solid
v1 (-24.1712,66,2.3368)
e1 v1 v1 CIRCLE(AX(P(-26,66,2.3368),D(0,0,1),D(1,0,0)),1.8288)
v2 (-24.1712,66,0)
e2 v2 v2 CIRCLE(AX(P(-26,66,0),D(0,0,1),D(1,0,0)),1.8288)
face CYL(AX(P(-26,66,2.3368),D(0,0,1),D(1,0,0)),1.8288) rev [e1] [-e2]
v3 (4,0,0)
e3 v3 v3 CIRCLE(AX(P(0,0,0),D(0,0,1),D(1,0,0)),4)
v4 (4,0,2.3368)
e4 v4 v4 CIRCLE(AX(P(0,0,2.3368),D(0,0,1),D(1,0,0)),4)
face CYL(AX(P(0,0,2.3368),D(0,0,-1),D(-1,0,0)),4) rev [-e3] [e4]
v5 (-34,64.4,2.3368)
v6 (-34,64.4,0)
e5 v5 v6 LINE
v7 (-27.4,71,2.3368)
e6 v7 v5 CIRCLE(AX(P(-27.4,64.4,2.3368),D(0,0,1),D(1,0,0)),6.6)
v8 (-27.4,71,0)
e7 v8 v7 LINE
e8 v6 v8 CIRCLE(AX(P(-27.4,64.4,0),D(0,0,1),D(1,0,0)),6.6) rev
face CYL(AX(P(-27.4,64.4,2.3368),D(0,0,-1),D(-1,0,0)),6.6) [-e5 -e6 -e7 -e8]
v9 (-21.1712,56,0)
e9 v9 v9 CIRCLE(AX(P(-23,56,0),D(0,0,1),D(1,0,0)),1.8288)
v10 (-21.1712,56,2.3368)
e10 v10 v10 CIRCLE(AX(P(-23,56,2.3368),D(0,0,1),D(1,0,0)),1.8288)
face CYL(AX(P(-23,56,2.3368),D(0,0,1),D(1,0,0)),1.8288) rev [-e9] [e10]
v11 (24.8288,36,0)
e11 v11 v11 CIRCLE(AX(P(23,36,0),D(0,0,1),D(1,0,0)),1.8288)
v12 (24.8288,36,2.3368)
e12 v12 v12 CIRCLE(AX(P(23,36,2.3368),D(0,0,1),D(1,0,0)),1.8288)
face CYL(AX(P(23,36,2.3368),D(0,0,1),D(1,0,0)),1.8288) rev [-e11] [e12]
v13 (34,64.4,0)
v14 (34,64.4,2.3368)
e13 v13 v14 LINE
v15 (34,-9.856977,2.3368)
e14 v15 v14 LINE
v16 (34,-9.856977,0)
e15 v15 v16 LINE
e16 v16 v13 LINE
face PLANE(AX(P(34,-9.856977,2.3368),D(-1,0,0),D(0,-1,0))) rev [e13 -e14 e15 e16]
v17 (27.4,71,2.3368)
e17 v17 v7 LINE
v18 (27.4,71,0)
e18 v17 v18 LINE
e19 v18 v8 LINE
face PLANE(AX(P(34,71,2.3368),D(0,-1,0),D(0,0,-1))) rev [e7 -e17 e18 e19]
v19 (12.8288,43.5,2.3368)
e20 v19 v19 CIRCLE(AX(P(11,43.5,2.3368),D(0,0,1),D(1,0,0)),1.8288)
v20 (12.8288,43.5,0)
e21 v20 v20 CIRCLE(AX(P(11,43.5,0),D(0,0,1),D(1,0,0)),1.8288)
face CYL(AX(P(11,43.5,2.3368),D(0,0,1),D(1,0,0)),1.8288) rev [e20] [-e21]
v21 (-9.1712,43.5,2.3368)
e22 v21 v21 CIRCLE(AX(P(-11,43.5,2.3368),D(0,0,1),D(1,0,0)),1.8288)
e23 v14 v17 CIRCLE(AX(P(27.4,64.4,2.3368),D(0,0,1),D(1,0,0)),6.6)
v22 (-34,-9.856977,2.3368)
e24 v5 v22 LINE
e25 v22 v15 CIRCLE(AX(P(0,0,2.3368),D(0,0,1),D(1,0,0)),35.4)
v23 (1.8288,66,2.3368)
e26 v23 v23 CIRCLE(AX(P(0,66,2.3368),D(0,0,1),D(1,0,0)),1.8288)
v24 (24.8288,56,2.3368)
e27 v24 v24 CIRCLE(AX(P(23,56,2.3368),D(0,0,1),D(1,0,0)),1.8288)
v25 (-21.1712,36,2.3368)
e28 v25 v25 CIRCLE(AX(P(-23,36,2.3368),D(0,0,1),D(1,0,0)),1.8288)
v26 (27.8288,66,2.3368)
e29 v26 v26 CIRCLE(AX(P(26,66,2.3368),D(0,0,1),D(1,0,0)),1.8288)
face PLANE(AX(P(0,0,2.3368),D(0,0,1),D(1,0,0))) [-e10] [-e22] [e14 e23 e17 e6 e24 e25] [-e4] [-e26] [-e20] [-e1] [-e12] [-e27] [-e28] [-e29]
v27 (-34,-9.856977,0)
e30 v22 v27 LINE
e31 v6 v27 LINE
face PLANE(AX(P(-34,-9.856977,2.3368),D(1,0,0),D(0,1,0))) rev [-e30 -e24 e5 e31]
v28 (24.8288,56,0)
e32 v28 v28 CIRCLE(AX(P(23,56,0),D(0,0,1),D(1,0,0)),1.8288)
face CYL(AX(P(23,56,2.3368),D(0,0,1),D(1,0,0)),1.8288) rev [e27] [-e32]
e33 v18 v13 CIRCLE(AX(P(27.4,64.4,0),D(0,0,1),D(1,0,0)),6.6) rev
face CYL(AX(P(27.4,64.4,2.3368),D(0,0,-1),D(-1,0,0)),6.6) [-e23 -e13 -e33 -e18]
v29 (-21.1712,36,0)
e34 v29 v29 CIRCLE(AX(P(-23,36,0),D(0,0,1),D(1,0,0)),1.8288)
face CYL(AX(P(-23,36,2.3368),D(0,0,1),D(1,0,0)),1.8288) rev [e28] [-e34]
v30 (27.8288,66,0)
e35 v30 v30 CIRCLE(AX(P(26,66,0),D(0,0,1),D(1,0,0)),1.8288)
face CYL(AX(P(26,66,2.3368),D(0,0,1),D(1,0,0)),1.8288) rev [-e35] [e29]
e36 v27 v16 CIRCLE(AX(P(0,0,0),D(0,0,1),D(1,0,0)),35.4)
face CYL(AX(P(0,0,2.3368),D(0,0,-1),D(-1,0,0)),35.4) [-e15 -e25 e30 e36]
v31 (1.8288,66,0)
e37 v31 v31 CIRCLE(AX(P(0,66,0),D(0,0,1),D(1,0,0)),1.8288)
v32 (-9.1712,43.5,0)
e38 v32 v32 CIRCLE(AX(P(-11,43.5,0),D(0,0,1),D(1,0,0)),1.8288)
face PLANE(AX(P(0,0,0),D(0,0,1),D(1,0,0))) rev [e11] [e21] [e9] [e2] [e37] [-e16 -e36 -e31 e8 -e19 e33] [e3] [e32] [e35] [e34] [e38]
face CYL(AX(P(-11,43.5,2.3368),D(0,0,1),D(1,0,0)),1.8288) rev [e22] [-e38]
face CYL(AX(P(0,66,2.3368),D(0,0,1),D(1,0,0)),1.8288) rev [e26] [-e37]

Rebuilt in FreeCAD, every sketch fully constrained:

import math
import FreeCAD as App
import Part
import Sketcher
from FreeCAD import Vector


def edges_at(feature, points):
    """Names of the edges that pass closest to the given points."""
    edges = feature.Shape.Edges
    near = lambda p: min(range(len(edges)), key=lambda i: edges[i].distToShape(Part.Vertex(*p))[0])
    return sorted({f"Edge{near(p) + 1}" for p in points})

doc = App.newDocument("Part")
body = doc.addObject("PartDesign::Body", "Body")

sketch1 = doc.addObject("Sketcher::SketchObject", "Sketch")
body.addObject(sketch1)
sketch1.AttachmentSupport = (doc.XY_Plane, [""])
sketch1.MapMode = "FlatFace"
sketch1.addGeometry([
    Part.LineSegment(Vector(34, 71, 0), Vector(-34, 71, 0)),
    Part.LineSegment(Vector(-34, 71, 0), Vector(-34, -9.856977, 0)),
    Part.ArcOfCircle(Part.Circle(Vector(0, 0, 0), Vector(0, 0, 1), 35.4), math.radians(-163.83254), math.radians(-16.16746)),
    Part.LineSegment(Vector(34, -9.856977, 0), Vector(34, 71, 0)),
    Part.Circle(Vector(0, 0, 0), Vector(0, 0, 1), 4),
], False)
sketch1.addConstraint([
    Sketcher.Constraint("Coincident", 0, 2, 1, 1),
    Sketcher.Constraint("Coincident", 1, 2, 2, 1),
    Sketcher.Constraint("Coincident", 2, 2, 3, 1),
    Sketcher.Constraint("Coincident", 3, 2, 0, 1),
    Sketcher.Constraint("Horizontal", 0),
    Sketcher.Constraint("Vertical", 1),
    Sketcher.Constraint("Vertical", 3),
    Sketcher.Constraint("Coincident", 2, 3, -1, 1),
    Sketcher.Constraint("Coincident", 4, 3, -1, 1),
    Sketcher.Constraint("Horizontal", 1, 2, 2, 2),
    Sketcher.Constraint("Diameter", 4, 8.0),
    Sketcher.Constraint("Radius", 2, 35.4),
    Sketcher.Constraint("DistanceX", 0, 2, 0, 1, 68.0),
    Sketcher.Constraint("DistanceY", -1, 1, 0, 2, 71.0),
])
pad1 = doc.addObject("PartDesign::Pad", "Pad")
body.addObject(pad1)
pad1.Profile = sketch1
pad1.Length = 2.3368

sketch2 = doc.addObject("Sketcher::SketchObject", "Sketch001")
body.addObject(sketch2)
sketch2.AttachmentSupport = (doc.XY_Plane, [""])
sketch2.MapMode = "FlatFace"
sketch2.AttachmentOffset = App.Placement(Vector(0, 0, 2.3368), App.Rotation())
sketch2.addGeometry([
    Part.Circle(Vector(0, 66, 0), Vector(0, 0, 1), 1.8288),
    Part.Circle(Vector(11, 43.5, 0), Vector(0, 0, 1), 1.8288),
    Part.Circle(Vector(23, 36, 0), Vector(0, 0, 1), 1.8288),
    Part.Circle(Vector(23, 56, 0), Vector(0, 0, 1), 1.8288),
    Part.Circle(Vector(26, 66, 0), Vector(0, 0, 1), 1.8288),
    Part.Circle(Vector(-23, 36, 0), Vector(0, 0, 1), 1.8288),
    Part.Circle(Vector(-11, 43.5, 0), Vector(0, 0, 1), 1.8288),
    Part.Circle(Vector(-23, 56, 0), Vector(0, 0, 1), 1.8288),
    Part.Circle(Vector(-26, 66, 0), Vector(0, 0, 1), 1.8288),
], False)
sketch2.addConstraint([
    Sketcher.Constraint("Equal", 0, 1),
    Sketcher.Constraint("Equal", 1, 2),
    Sketcher.Constraint("Equal", 2, 3),
    Sketcher.Constraint("Equal", 3, 4),
    Sketcher.Constraint("Equal", 4, 5),
    Sketcher.Constraint("Equal", 5, 6),
    Sketcher.Constraint("Equal", 6, 7),
    Sketcher.Constraint("Equal", 7, 8),
    Sketcher.Constraint("Symmetric", 2, 3, 5, 3, -2),
    Sketcher.Constraint("Symmetric", 1, 3, 6, 3, -2),
    Sketcher.Constraint("Symmetric", 3, 3, 7, 3, -2),
    Sketcher.Constraint("Symmetric", 4, 3, 8, 3, -2),
    Sketcher.Constraint("PointOnObject", 0, 3, -2),
    Sketcher.Constraint("Horizontal", 0, 3, 4, 3),
    Sketcher.Constraint("Vertical", 2, 3, 3, 3),
    Sketcher.Constraint("DistanceY", -1, 1, 0, 3, 66.0),
    Sketcher.Constraint("DistanceX", -1, 1, 1, 3, 11.0),
    Sketcher.Constraint("DistanceX", -1, 1, 2, 3, 23.0),
    Sketcher.Constraint("DistanceY", -1, 1, 2, 3, 36.0),
    Sketcher.Constraint("DistanceY", -1, 1, 3, 3, 56.0),
    Sketcher.Constraint("DistanceX", -1, 1, 4, 3, 26.0),
    Sketcher.Constraint("Diameter", 0, 3.6576),
    Sketcher.Constraint("DistanceY", -1, 1, 1, 3, 43.5),
])
doc.recompute()
hole = doc.addObject("PartDesign::Hole", "Hole")
body.addObject(hole)
hole.Profile = sketch2
hole.ThreadType = "None"
hole.Diameter = 3.6576
hole.DepthType = "ThroughAll"
doc.recompute()

fillet = doc.addObject("PartDesign::Fillet", "Fillet")
body.addObject(fillet)
fillet.Base = (hole, edges_at(hole, [(-34, 71, 1.168), (34, 71, 1.168)]))
fillet.Radius = 6.6

doc.recompute()
